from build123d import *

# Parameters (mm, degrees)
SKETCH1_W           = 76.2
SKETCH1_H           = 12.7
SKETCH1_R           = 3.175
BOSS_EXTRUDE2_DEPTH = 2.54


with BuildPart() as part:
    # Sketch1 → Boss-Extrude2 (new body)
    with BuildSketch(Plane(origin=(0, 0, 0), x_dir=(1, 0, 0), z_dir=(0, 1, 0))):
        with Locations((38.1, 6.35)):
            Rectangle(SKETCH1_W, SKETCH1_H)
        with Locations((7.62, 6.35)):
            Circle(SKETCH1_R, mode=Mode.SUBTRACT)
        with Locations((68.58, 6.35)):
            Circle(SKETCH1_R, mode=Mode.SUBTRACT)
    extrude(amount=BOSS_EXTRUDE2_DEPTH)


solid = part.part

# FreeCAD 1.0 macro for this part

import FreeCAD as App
import Part
import Sketcher
Q = App.Units.Quantity


def add_polygon(sketch, points):
    """Adds a closed chain of lines whose ends are joined by coincident constraints."""
    first, n = sketch.GeometryCount, len(points)
    for a, b in zip(points, points[1:] + points[:1]):
        sketch.addGeometry(Part.LineSegment(App.Vector(*a, 0), App.Vector(*b, 0)), False)
    for i in range(n):
        sketch.addConstraint(Sketcher.Constraint("Coincident", first + i, 2, first + (i + 1) % n, 1))

doc = App.newDocument("Part")
params = doc.addObject("Spreadsheet::Sheet", "Params")
for row, (alias, value) in enumerate([
    ("sketch1_diameter", "0.25 in"),
    ("sketch1_width", "3 in"),
    ("sketch1_height", "0.5 in"),
    ("pad1_length", "0.1 in"),
], start=1):
    params.set(f"A{row}", alias)
    params.set(f"B{row}", "=" + value)
    params.setAlias(f"B{row}", alias)

body = doc.addObject("PartDesign::Body", "Body")

sketch1 = body.newObject("Sketcher::SketchObject", "Sketch")
sketch1.AttachmentSupport = (doc.getObject("XZ_Plane"), [""])
sketch1.MapMode = "FlatFace"
add_polygon(sketch1, [(0, -12.7), (0, 0), (76.2, 0), (76.2, -12.7)])
sketch1.addGeometry(Part.Circle(App.Vector(7.6, -6.3, 0), App.Vector(0, 0, 1), 3.2), False)
sketch1.addGeometry(Part.Circle(App.Vector(68.6, -6.3, 0), App.Vector(0, 0, 1), 3.2), False)
sketch1.addConstraint(Sketcher.Constraint("Vertical", 0))
sketch1.addConstraint(Sketcher.Constraint("Horizontal", 1))
sketch1.addConstraint(Sketcher.Constraint("Vertical", 2))
sketch1.addConstraint(Sketcher.Constraint("Horizontal", 3))
sketch1.addConstraint(Sketcher.Constraint("Coincident", 0, 2, -1, 1))
sketch1.addConstraint(Sketcher.Constraint("Equal", 4, 5))
sketch1.addConstraint(Sketcher.Constraint("Horizontal", 4, 3, 5, 3))
sketch1.addConstraint(Sketcher.Constraint("Diameter", 4, Q("0.25 in")))
sketch1.addConstraint(Sketcher.Constraint("DistanceX", 1, 1, 1, 2, Q("3 in")))
sketch1.addConstraint(Sketcher.Constraint("DistanceY", 0, 1, 0, 2, Q("0.5 in")))
sketch1.addConstraint(Sketcher.Constraint("DistanceX", -1, 1, 4, 3, Q("0.3 in")))
sketch1.addConstraint(Sketcher.Constraint("DistanceX", -1, 1, 5, 3, Q("2.7 in")))
sketch1.addConstraint(Sketcher.Constraint("DistanceY", 4, 3, -1, 1, Q("0.25 in")))
sketch1.setExpression("Constraints[11]", "Params.sketch1_diameter")
sketch1.setExpression("Constraints[12]", "Params.sketch1_width")
sketch1.setExpression("Constraints[13]", "Params.sketch1_height")
pad1 = body.newObject("PartDesign::Pad", "Pad")
pad1.Profile = sketch1
pad1.setExpression("Length", "Params.pad1_length")
pad1.Reversed = True

doc.recompute()
